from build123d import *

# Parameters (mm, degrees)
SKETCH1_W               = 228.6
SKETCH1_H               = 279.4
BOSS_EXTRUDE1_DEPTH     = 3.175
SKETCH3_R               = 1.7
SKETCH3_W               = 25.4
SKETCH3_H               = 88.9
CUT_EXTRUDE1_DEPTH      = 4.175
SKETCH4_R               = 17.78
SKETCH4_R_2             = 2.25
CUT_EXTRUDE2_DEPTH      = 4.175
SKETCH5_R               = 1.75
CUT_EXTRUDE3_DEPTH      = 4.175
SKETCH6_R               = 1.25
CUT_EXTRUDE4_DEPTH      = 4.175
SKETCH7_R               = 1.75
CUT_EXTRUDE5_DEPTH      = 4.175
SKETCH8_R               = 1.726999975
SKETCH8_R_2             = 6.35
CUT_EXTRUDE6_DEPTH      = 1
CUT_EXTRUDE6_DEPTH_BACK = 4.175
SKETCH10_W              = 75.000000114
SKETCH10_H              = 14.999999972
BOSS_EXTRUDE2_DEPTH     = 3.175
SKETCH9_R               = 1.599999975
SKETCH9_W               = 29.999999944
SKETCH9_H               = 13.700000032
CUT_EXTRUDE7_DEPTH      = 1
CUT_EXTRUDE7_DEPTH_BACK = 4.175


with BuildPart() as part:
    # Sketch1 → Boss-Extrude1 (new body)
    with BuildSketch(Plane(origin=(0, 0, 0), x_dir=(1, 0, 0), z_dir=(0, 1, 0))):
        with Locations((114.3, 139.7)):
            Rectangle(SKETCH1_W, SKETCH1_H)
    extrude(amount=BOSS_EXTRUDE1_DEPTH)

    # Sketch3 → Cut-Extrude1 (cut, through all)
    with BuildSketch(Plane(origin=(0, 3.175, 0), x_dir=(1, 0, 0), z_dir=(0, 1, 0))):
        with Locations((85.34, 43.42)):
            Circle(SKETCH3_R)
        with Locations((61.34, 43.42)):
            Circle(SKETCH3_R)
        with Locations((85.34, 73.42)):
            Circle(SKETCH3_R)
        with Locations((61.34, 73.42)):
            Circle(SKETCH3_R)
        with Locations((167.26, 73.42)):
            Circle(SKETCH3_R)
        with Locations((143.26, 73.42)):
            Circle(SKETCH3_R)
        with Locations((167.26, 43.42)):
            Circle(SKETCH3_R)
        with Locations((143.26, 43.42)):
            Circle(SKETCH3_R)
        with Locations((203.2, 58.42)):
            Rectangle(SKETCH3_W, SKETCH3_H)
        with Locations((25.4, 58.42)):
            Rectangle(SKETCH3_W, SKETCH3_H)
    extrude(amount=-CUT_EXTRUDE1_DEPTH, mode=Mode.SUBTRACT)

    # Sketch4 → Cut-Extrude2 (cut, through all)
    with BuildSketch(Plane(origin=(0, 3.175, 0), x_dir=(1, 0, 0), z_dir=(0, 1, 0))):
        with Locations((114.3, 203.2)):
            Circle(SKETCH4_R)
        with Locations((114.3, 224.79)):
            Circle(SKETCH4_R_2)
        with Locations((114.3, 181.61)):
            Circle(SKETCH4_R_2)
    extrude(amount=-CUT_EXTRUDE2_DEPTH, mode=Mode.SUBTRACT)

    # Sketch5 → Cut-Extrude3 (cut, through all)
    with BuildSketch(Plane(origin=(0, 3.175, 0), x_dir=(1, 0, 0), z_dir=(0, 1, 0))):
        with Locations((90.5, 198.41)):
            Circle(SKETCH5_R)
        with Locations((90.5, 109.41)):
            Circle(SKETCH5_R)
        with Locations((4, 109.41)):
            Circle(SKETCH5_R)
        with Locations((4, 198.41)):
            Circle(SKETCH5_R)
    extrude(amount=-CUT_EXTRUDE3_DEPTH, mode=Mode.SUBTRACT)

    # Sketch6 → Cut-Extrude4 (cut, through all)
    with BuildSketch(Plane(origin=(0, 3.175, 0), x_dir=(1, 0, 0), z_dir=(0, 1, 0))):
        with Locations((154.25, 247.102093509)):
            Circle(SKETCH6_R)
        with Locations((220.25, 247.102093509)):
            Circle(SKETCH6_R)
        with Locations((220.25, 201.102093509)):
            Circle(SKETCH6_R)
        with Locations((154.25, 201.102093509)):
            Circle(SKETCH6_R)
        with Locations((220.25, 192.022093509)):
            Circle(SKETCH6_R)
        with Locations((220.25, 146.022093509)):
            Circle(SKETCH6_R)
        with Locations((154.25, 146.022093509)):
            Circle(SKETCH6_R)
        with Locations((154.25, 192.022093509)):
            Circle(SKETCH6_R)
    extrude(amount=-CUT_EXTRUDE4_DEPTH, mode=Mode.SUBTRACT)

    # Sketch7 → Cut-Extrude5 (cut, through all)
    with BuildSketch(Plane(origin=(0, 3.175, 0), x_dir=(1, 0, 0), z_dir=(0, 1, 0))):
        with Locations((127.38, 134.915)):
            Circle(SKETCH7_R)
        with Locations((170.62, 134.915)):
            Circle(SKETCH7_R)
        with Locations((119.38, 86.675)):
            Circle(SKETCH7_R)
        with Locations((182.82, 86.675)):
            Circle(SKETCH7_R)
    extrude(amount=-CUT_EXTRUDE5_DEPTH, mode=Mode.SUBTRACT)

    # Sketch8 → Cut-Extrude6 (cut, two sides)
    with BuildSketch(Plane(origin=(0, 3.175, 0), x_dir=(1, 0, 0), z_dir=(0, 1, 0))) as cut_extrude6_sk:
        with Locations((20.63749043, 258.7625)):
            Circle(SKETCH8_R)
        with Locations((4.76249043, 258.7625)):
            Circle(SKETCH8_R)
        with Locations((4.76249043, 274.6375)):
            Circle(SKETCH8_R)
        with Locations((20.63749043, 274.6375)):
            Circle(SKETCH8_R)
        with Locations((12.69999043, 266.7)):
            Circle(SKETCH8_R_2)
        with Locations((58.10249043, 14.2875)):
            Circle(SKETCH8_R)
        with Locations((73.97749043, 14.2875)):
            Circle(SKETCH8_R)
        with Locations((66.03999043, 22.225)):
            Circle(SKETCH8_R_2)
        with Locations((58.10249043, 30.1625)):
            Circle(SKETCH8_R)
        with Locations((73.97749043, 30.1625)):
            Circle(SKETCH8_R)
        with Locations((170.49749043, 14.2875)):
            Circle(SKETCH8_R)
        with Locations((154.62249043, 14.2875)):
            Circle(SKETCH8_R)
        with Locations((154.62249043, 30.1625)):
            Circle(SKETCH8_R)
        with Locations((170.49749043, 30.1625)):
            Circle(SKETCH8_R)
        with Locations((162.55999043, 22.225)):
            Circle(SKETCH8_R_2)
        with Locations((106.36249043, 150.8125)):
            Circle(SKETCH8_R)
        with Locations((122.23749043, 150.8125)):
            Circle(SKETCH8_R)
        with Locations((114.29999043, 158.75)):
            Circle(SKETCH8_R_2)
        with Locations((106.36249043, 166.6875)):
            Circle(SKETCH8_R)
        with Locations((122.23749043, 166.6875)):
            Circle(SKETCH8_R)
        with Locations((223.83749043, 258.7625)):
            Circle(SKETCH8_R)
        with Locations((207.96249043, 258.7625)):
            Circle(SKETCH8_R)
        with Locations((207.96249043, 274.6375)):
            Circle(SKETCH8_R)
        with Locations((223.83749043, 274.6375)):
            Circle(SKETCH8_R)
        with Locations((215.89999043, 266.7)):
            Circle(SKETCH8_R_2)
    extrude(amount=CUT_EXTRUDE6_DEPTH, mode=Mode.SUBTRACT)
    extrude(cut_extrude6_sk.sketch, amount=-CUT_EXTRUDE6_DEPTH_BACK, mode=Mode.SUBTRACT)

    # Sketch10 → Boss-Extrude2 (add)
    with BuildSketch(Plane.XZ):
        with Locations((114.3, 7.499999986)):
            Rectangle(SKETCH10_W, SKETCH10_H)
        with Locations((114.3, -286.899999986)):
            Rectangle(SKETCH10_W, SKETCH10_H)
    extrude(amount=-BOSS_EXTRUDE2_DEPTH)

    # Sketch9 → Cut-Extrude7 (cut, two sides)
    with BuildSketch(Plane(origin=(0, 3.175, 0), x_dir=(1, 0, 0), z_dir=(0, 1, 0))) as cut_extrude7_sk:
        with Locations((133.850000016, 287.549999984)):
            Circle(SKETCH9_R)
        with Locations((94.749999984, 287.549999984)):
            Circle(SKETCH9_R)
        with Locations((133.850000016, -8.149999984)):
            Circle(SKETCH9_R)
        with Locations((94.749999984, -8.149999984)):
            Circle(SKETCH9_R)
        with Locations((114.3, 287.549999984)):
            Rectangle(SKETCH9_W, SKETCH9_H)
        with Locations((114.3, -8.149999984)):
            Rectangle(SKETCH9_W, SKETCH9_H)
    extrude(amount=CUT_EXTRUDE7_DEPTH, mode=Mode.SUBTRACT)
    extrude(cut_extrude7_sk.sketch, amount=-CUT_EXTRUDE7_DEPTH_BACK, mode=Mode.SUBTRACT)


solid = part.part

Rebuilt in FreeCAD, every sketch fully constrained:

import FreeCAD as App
import Part
import Sketcher
Q = App.Units.Quantity

doc = App.newDocument("Part")
params = doc.addObject("Spreadsheet::Sheet", "Params")
for row, (alias, value) in enumerate([
    ("sketch1_width", "228.6 mm"),
    ("sketch1_height", "279.4 mm"),
    ("pad1_length", "3.175 mm"),
    ("sketch2_diameter", "3.4 mm"),
    ("sketch2_width", "25.4 mm"),
    ("sketch2_height", "88.9 mm"),
    ("sketch3_diameter", "4.5 mm"),
    ("sketch3_diameter2", "35.56 mm"),
    ("sketch4_diameter", "3.5 mm"),
    ("sketch5_diameter", "2.5 mm"),
    ("sketch6_diameter", "3.5 mm"),
    ("sketch7_diameter", "12.7 mm"),
    ("sketch8_width", "75 mm"),
    ("sketch8_height", "15 mm"),
    ("pad2_length", "3.175 mm"),
    ("sketch9_diameter", "3.2 mm"),
    ("sketch9_width", "30 mm"),
    ("sketch9_height", "13.7 mm"),
], start=1):
    params.set(f"A{row}", alias)
    params.set(f"B{row}", "=" + value)
    params.setAlias(f"B{row}", alias)

body = doc.addObject("PartDesign::Body", "Body")

# Sketch on XZ plane
sketch1 = body.newObject("Sketcher::SketchObject", "Sketch")
sketch1.AttachmentSupport = (doc.getObject("XZ_Plane"), [""])
sketch1.MapMode = "FlatFace"
sketch1.addGeometry(Part.LineSegment(App.Vector(0, -279, 0), App.Vector(0, 0, 0)), False)
sketch1.addGeometry(Part.LineSegment(App.Vector(0, 0, 0), App.Vector(229, 0, 0)), False)
sketch1.addGeometry(Part.LineSegment(App.Vector(229, 0, 0), App.Vector(229, -279, 0)), False)
sketch1.addGeometry(Part.LineSegment(App.Vector(229, -279, 0), App.Vector(0, -279, 0)), False)
sketch1.addConstraint(Sketcher.Constraint("Coincident", 0, 2, 1, 1))
sketch1.addConstraint(Sketcher.Constraint("Coincident", 1, 2, 2, 1))
sketch1.addConstraint(Sketcher.Constraint("Coincident", 2, 2, 3, 1))
sketch1.addConstraint(Sketcher.Constraint("Coincident", 3, 2, 0, 1))
sketch1.addConstraint(Sketcher.Constraint("Vertical", 0))
sketch1.addConstraint(Sketcher.Constraint("Horizontal", 1))
sketch1.addConstraint(Sketcher.Constraint("Vertical", 2))
sketch1.addConstraint(Sketcher.Constraint("Horizontal", 3))
sketch1.addConstraint(Sketcher.Constraint("Coincident", 0, 2, -1, 1))
sketch1.addConstraint(Sketcher.Constraint("DistanceX", 1, 1, 1, 2, Q("228.6 mm")))
sketch1.addConstraint(Sketcher.Constraint("DistanceY", 0, 1, 0, 2, Q("279.4 mm")))
sketch1.setExpression("Constraints[9]", "Params.sketch1_width")
sketch1.setExpression("Constraints[10]", "Params.sketch1_height")
pad1 = body.newObject("PartDesign::Pad", "Pad")
pad1.Profile = sketch1
pad1.setExpression("Length", "Params.pad1_length")
pad1.Reversed = True

# Sketch on XZ plane
sketch2 = body.newObject("Sketcher::SketchObject", "Sketch001")
sketch2.AttachmentSupport = (doc.getObject("XZ_Plane"), [""])
sketch2.MapMode = "FlatFace"
sketch2.AttachmentOffset = App.Placement(App.Vector(0, 0, -3.175), App.Rotation())
sketch2.addGeometry(Part.Circle(App.Vector(85.3, -43.4, 0), App.Vector(0, 0, 1), 1.7), False)
sketch2.addGeometry(Part.Circle(App.Vector(61.3, -43.4, 0), App.Vector(0, 0, 1), 1.7), False)
sketch2.addGeometry(Part.Circle(App.Vector(85.3, -73.4, 0), App.Vector(0, 0, 1), 1.7), False)
sketch2.addGeometry(Part.Circle(App.Vector(61.3, -73.4, 0), App.Vector(0, 0, 1), 1.7), False)
sketch2.addGeometry(Part.Circle(App.Vector(167.3, -73.4, 0), App.Vector(0, 0, 1), 1.7), False)
sketch2.addGeometry(Part.Circle(App.Vector(143.3, -73.4, 0), App.Vector(0, 0, 1), 1.7), False)
sketch2.addGeometry(Part.Circle(App.Vector(167.3, -43.4, 0), App.Vector(0, 0, 1), 1.7), False)
sketch2.addGeometry(Part.Circle(App.Vector(143.3, -43.4, 0), App.Vector(0, 0, 1), 1.7), False)
sketch2.addGeometry(Part.LineSegment(App.Vector(190.5, -102.9, 0), App.Vector(190.5, -14, 0)), False)
sketch2.addGeometry(Part.LineSegment(App.Vector(190.5, -14, 0), App.Vector(215.9, -14, 0)), False)
sketch2.addGeometry(Part.LineSegment(App.Vector(215.9, -14, 0), App.Vector(215.9, -102.9, 0)), False)
sketch2.addGeometry(Part.LineSegment(App.Vector(215.9, -102.9, 0), App.Vector(190.5, -102.9, 0)), False)
sketch2.addGeometry(Part.LineSegment(App.Vector(12.7, -102.9, 0), App.Vector(12.7, -14, 0)), False)
sketch2.addGeometry(Part.LineSegment(App.Vector(12.7, -14, 0), App.Vector(38.1, -14, 0)), False)
sketch2.addGeometry(Part.LineSegment(App.Vector(38.1, -14, 0), App.Vector(38.1, -102.9, 0)), False)
sketch2.addGeometry(Part.LineSegment(App.Vector(38.1, -102.9, 0), App.Vector(12.7, -102.9, 0)), False)
sketch2.addConstraint(Sketcher.Constraint("Coincident", 8, 2, 9, 1))
sketch2.addConstraint(Sketcher.Constraint("Coincident", 9, 2, 10, 1))
sketch2.addConstraint(Sketcher.Constraint("Coincident", 10, 2, 11, 1))
sketch2.addConstraint(Sketcher.Constraint("Coincident", 11, 2, 8, 1))
sketch2.addConstraint(Sketcher.Constraint("Coincident", 12, 2, 13, 1))
sketch2.addConstraint(Sketcher.Constraint("Coincident", 13, 2, 14, 1))
sketch2.addConstraint(Sketcher.Constraint("Coincident", 14, 2, 15, 1))
sketch2.addConstraint(Sketcher.Constraint("Coincident", 15, 2, 12, 1))
sketch2.addConstraint(Sketcher.Constraint("Vertical", 8))
sketch2.addConstraint(Sketcher.Constraint("Horizontal", 9))
sketch2.addConstraint(Sketcher.Constraint("Vertical", 10))
sketch2.addConstraint(Sketcher.Constraint("Horizontal", 11))
sketch2.addConstraint(Sketcher.Constraint("Vertical", 12))
sketch2.addConstraint(Sketcher.Constraint("Horizontal", 13))
sketch2.addConstraint(Sketcher.Constraint("Vertical", 14))
sketch2.addConstraint(Sketcher.Constraint("Horizontal", 15))
sketch2.addConstraint(Sketcher.Constraint("Equal", 0, 1))
sketch2.addConstraint(Sketcher.Constraint("Equal", 1, 2))
sketch2.addConstraint(Sketcher.Constraint("Equal", 2, 3))
sketch2.addConstraint(Sketcher.Constraint("Equal", 3, 4))
sketch2.addConstraint(Sketcher.Constraint("Equal", 4, 5))
sketch2.addConstraint(Sketcher.Constraint("Equal", 5, 6))
sketch2.addConstraint(Sketcher.Constraint("Equal", 6, 7))
sketch2.addConstraint(Sketcher.Constraint("Horizontal", 0, 3, 1, 3))
sketch2.addConstraint(Sketcher.Constraint("Horizontal", 2, 3, 3, 3))
sketch2.addConstraint(Sketcher.Constraint("Horizontal", 3, 3, 4, 3))
sketch2.addConstraint(Sketcher.Constraint("Horizontal", 4, 3, 5, 3))
sketch2.addConstraint(Sketcher.Constraint("Horizontal", 1, 3, 6, 3))
sketch2.addConstraint(Sketcher.Constraint("Horizontal", 6, 3, 7, 3))
sketch2.addConstraint(Sketcher.Constraint("Horizontal", 9, 2, 12, 2))
sketch2.addConstraint(Sketcher.Constraint("Horizontal", 11, 2, 14, 2))
sketch2.addConstraint(Sketcher.Constraint("Vertical", 0, 3, 2, 3))
sketch2.addConstraint(Sketcher.Constraint("Vertical", 1, 3, 3, 3))
sketch2.addConstraint(Sketcher.Constraint("Vertical", 4, 3, 6, 3))
sketch2.addConstraint(Sketcher.Constraint("Vertical", 5, 3, 7, 3))
sketch2.addConstraint(Sketcher.Constraint("Equal", 11, 13))
sketch2.addConstraint(Sketcher.Constraint("Diameter", 0, Q("3.4 mm")))
sketch2.addConstraint(Sketcher.Constraint("DistanceX", 9, 1, 9, 2, Q("25.4 mm")))
sketch2.addConstraint(Sketcher.Constraint("DistanceY", 8, 1, 8, 2, Q("88.9 mm")))
sketch2.addConstraint(Sketcher.Constraint("DistanceX", 1, 3, 0, 3, Q("24 mm")))
sketch2.addConstraint(Sketcher.Constraint("DistanceY", 2, 3, 0, 3, Q("30 mm")))
sketch2.addConstraint(Sketcher.Constraint("DistanceX", 5, 3, 4, 3, Q("24 mm")))
sketch2.addConstraint(Sketcher.Constraint("DistanceX", -1, 1, 8, 2, Q("190.5 mm")))
sketch2.addConstraint(Sketcher.Constraint("DistanceX", -1, 1, 12, 2, Q("12.7 mm")))
sketch2.addConstraint(Sketcher.Constraint("DistanceX", -1, 1, 0, 3, Q("85.34 mm")))
sketch2.addConstraint(Sketcher.Constraint("DistanceY", 0, 3, -1, 1, Q("43.42 mm")))
sketch2.addConstraint(Sketcher.Constraint("DistanceX", -1, 1, 4, 3, Q("167.26 mm")))
sketch2.addConstraint(Sketcher.Constraint("DistanceY", 8, 2, -1, 1, Q("13.97 mm")))
sketch2.setExpression("Constraints[36]", "Params.sketch2_diameter")
sketch2.setExpression("Constraints[37]", "Params.sketch2_width")
sketch2.setExpression("Constraints[38]", "Params.sketch2_height")
pocket1 = body.newObject("PartDesign::Pocket", "Pocket")
pocket1.Profile = sketch2
pocket1.Type = "ThroughAll"
pocket1.Reversed = True

# Sketch on XZ plane
sketch3 = body.newObject("Sketcher::SketchObject", "Sketch002")
sketch3.AttachmentSupport = (doc.getObject("XZ_Plane"), [""])
sketch3.MapMode = "FlatFace"
sketch3.AttachmentOffset = App.Placement(App.Vector(0, 0, -3.175), App.Rotation())
sketch3.addGeometry(Part.Circle(App.Vector(114.3, -203.2, 0), App.Vector(0, 0, 1), 17.8), False)
sketch3.addGeometry(Part.Circle(App.Vector(114.3, -224.8, 0), App.Vector(0, 0, 1), 2.2), False)
sketch3.addGeometry(Part.Circle(App.Vector(114.3, -181.6, 0), App.Vector(0, 0, 1), 2.2), False)
sketch3.addConstraint(Sketcher.Constraint("Equal", 1, 2))
sketch3.addConstraint(Sketcher.Constraint("Vertical", 0, 3, 1, 3))
sketch3.addConstraint(Sketcher.Constraint("Vertical", 1, 3, 2, 3))
sketch3.addConstraint(Sketcher.Constraint("Diameter", 1, Q("4.5 mm")))
sketch3.addConstraint(Sketcher.Constraint("Diameter", 0, Q("35.56 mm")))
sketch3.addConstraint(Sketcher.Constraint("DistanceX", -1, 1, 0, 3, Q("114.3 mm")))
sketch3.addConstraint(Sketcher.Constraint("DistanceY", 0, 3, -1, 1, Q("203.2 mm")))
sketch3.addConstraint(Sketcher.Constraint("DistanceY", 1, 3, -1, 1, Q("224.79 mm")))
sketch3.addConstraint(Sketcher.Constraint("DistanceY", 2, 3, -1, 1, Q("181.61 mm")))
sketch3.setExpression("Constraints[3]", "Params.sketch3_diameter")
sketch3.setExpression("Constraints[4]", "Params.sketch3_diameter2")
pocket2 = body.newObject("PartDesign::Pocket", "Pocket001")
pocket2.Profile = sketch3
pocket2.Type = "ThroughAll"
pocket2.Reversed = True

# Sketch on XZ plane
sketch4 = body.newObject("Sketcher::SketchObject", "Sketch003")
sketch4.AttachmentSupport = (doc.getObject("XZ_Plane"), [""])
sketch4.MapMode = "FlatFace"
sketch4.AttachmentOffset = App.Placement(App.Vector(0, 0, -3.175), App.Rotation())
sketch4.addGeometry(Part.Circle(App.Vector(90.5, -198.4, 0), App.Vector(0, 0, 1), 1.8), False)
sketch4.addGeometry(Part.Circle(App.Vector(90.5, -109.4, 0), App.Vector(0, 0, 1), 1.8), False)
sketch4.addGeometry(Part.Circle(App.Vector(4, -109.4, 0), App.Vector(0, 0, 1), 1.8), False)
sketch4.addGeometry(Part.Circle(App.Vector(4, -198.4, 0), App.Vector(0, 0, 1), 1.8), False)
sketch4.addConstraint(Sketcher.Constraint("Equal", 0, 1))
sketch4.addConstraint(Sketcher.Constraint("Equal", 1, 2))
sketch4.addConstraint(Sketcher.Constraint("Equal", 2, 3))
sketch4.addConstraint(Sketcher.Constraint("Horizontal", 1, 3, 2, 3))
sketch4.addConstraint(Sketcher.Constraint("Horizontal", 0, 3, 3, 3))
sketch4.addConstraint(Sketcher.Constraint("Vertical", 0, 3, 1, 3))
sketch4.addConstraint(Sketcher.Constraint("Vertical", 2, 3, 3, 3))
sketch4.addConstraint(Sketcher.Constraint("Diameter", 0, Q("3.5 mm")))
sketch4.addConstraint(Sketcher.Constraint("DistanceX", -1, 1, 2, 3, Q("4 mm")))
sketch4.addConstraint(Sketcher.Constraint("DistanceY", 0, 3, 1, 3, Q("89 mm")))
sketch4.addConstraint(Sketcher.Constraint("DistanceX", -1, 1, 0, 3, Q("90.5 mm")))
sketch4.addConstraint(Sketcher.Constraint("DistanceY", 0, 3, -1, 1, Q("198.41 mm")))
sketch4.setExpression("Constraints[7]", "Params.sketch4_diameter")
pocket3 = body.newObject("PartDesign::Pocket", "Pocket002")
pocket3.Profile = sketch4
pocket3.Type = "ThroughAll"
pocket3.Reversed = True

# Sketch on XZ plane
sketch5 = body.newObject("Sketcher::SketchObject", "Sketch004")
sketch5.AttachmentSupport = (doc.getObject("XZ_Plane"), [""])
sketch5.MapMode = "FlatFace"
sketch5.AttachmentOffset = App.Placement(App.Vector(0, 0, -3.175), App.Rotation())
sketch5.addGeometry(Part.Circle(App.Vector(154.2, -247.1, 0), App.Vector(0, 0, 1), 1.2), False)
sketch5.addGeometry(Part.Circle(App.Vector(220.2, -247.1, 0), App.Vector(0, 0, 1), 1.2), False)
sketch5.addGeometry(Part.Circle(App.Vector(220.2, -201.1, 0), App.Vector(0, 0, 1), 1.2), False)
sketch5.addGeometry(Part.Circle(App.Vector(154.2, -201.1, 0), App.Vector(0, 0, 1), 1.2), False)
sketch5.addGeometry(Part.Circle(App.Vector(220.2, -192, 0), App.Vector(0, 0, 1), 1.2), False)
sketch5.addGeometry(Part.Circle(App.Vector(220.2, -146, 0), App.Vector(0, 0, 1), 1.2), False)
sketch5.addGeometry(Part.Circle(App.Vector(154.2, -146, 0), App.Vector(0, 0, 1), 1.2), False)
sketch5.addGeometry(Part.Circle(App.Vector(154.2, -192, 0), App.Vector(0, 0, 1), 1.2), False)
sketch5.addConstraint(Sketcher.Constraint("Equal", 0, 1))
sketch5.addConstraint(Sketcher.Constraint("Equal", 1, 2))
sketch5.addConstraint(Sketcher.Constraint("Equal", 2, 3))
sketch5.addConstraint(Sketcher.Constraint("Equal", 3, 4))
sketch5.addConstraint(Sketcher.Constraint("Equal", 4, 5))
sketch5.addConstraint(Sketcher.Constraint("Equal", 5, 6))
sketch5.addConstraint(Sketcher.Constraint("Equal", 6, 7))
sketch5.addConstraint(Sketcher.Constraint("Horizontal", 0, 3, 1, 3))
sketch5.addConstraint(Sketcher.Constraint("Horizontal", 2, 3, 3, 3))
sketch5.addConstraint(Sketcher.Constraint("Horizontal", 5, 3, 6, 3))
sketch5.addConstraint(Sketcher.Constraint("Horizontal", 4, 3, 7, 3))
sketch5.addConstraint(Sketcher.Constraint("Vertical", 1, 3, 2, 3))
sketch5.addConstraint(Sketcher.Constraint("Vertical", 0, 3, 3, 3))
sketch5.addConstraint(Sketcher.Constraint("Vertical", 2, 3, 4, 3))
sketch5.addConstraint(Sketcher.Constraint("Vertical", 4, 3, 5, 3))
sketch5.addConstraint(Sketcher.Constraint("Vertical", 3, 3, 6, 3))
sketch5.addConstraint(Sketcher.Constraint("Vertical", 6, 3, 7, 3))
sketch5.addConstraint(Sketcher.Constraint("Diameter", 0, Q("2.5 mm")))
sketch5.addConstraint(Sketcher.Constraint("DistanceX", 0, 3, 1, 3, Q("66 mm")))
sketch5.addConstraint(Sketcher.Constraint("DistanceY", 1, 3, 2, 3, Q("46 mm")))
sketch5.addConstraint(Sketcher.Constraint("DistanceY", 4, 3, 5, 3, Q("46 mm")))
sketch5.addConstraint(Sketcher.Constraint("DistanceX", -1, 1, 0, 3, Q("154.25 mm")))
sketch5.addConstraint(Sketcher.Constraint("DistanceY", 2, 3, 4, 3, Q("9.08 mm")))
sketch5.addConstraint(Sketcher.Constraint("DistanceY", 0, 3, -1, 1, Q("247.102094 mm")))
sketch5.setExpression("Constraints[17]", "Params.sketch5_diameter")
pocket4 = body.newObject("PartDesign::Pocket", "Pocket003")
pocket4.Profile = sketch5
pocket4.Type = "ThroughAll"
pocket4.Reversed = True

# Sketch on XZ plane
sketch6 = body.newObject("Sketcher::SketchObject", "Sketch005")
sketch6.AttachmentSupport = (doc.getObject("XZ_Plane"), [""])
sketch6.MapMode = "FlatFace"
sketch6.AttachmentOffset = App.Placement(App.Vector(0, 0, -3.175), App.Rotation())
sketch6.addGeometry(Part.Circle(App.Vector(127.4, -134.9, 0), App.Vector(0, 0, 1), 1.8), False)
sketch6.addGeometry(Part.Circle(App.Vector(170.6, -134.9, 0), App.Vector(0, 0, 1), 1.8), False)
sketch6.addGeometry(Part.Circle(App.Vector(119.4, -86.7, 0), App.Vector(0, 0, 1), 1.8), False)
sketch6.addGeometry(Part.Circle(App.Vector(182.8, -86.7, 0), App.Vector(0, 0, 1), 1.8), False)
sketch6.addConstraint(Sketcher.Constraint("Equal", 0, 1))
sketch6.addConstraint(Sketcher.Constraint("Equal", 1, 2))
sketch6.addConstraint(Sketcher.Constraint("Equal", 2, 3))
sketch6.addConstraint(Sketcher.Constraint("Horizontal", 0, 3, 1, 3))
sketch6.addConstraint(Sketcher.Constraint("Horizontal", 2, 3, 3, 3))
sketch6.addConstraint(Sketcher.Constraint("Diameter", 0, Q("3.5 mm")))
sketch6.addConstraint(Sketcher.Constraint("DistanceX", 2, 3, 0, 3, Q("8 mm")))
sketch6.addConstraint(Sketcher.Constraint("DistanceX", 1, 3, 3, 3, Q("12.2 mm")))
sketch6.addConstraint(Sketcher.Constraint("DistanceX", -1, 1, 0, 3, Q("127.38 mm")))
sketch6.addConstraint(Sketcher.Constraint("DistanceX", -1, 1, 1, 3, Q("170.62 mm")))
sketch6.addConstraint(Sketcher.Constraint("DistanceY", 0, 3, 2, 3, Q("48.24 mm")))
sketch6.addConstraint(Sketcher.Constraint("DistanceY", 0, 3, -1, 1, Q("134.915 mm")))
sketch6.setExpression("Constraints[5]", "Params.sketch6_diameter")
pocket5 = body.newObject("PartDesign::Pocket", "Pocket004")
pocket5.Profile = sketch6
pocket5.Type = "ThroughAll"
pocket5.Reversed = True

# Sketch on XZ plane
sketch7 = body.newObject("Sketcher::SketchObject", "Sketch006")
sketch7.AttachmentSupport = (doc.getObject("XZ_Plane"), [""])
sketch7.MapMode = "FlatFace"
sketch7.AttachmentOffset = App.Placement(App.Vector(0, 0, -3.175), App.Rotation())
sketch7.addGeometry(Part.Circle(App.Vector(20.6, -258.8, 0), App.Vector(0, 0, 1), 1.7), False)
sketch7.addGeometry(Part.Circle(App.Vector(4.8, -258.8, 0), App.Vector(0, 0, 1), 1.7), False)
sketch7.addGeometry(Part.Circle(App.Vector(4.8, -274.6, 0), App.Vector(0, 0, 1), 1.7), False)
sketch7.addGeometry(Part.Circle(App.Vector(20.6, -274.6, 0), App.Vector(0, 0, 1), 1.7), False)
sketch7.addGeometry(Part.Circle(App.Vector(12.7, -266.7, 0), App.Vector(0, 0, 1), 6.3), False)
sketch7.addGeometry(Part.Circle(App.Vector(58.1, -14.3, 0), App.Vector(0, 0, 1), 1.7), False)
sketch7.addGeometry(Part.Circle(App.Vector(74, -14.3, 0), App.Vector(0, 0, 1), 1.7), False)
sketch7.addGeometry(Part.Circle(App.Vector(66, -22.2, 0), App.Vector(0, 0, 1), 6.3), False)
sketch7.addGeometry(Part.Circle(App.Vector(58.1, -30.2, 0), App.Vector(0, 0, 1), 1.7), False)
sketch7.addGeometry(Part.Circle(App.Vector(74, -30.2, 0), App.Vector(0, 0, 1), 1.7), False)
sketch7.addGeometry(Part.Circle(App.Vector(170.5, -14.3, 0), App.Vector(0, 0, 1), 1.7), False)
sketch7.addGeometry(Part.Circle(App.Vector(154.6, -14.3, 0), App.Vector(0, 0, 1), 1.7), False)
sketch7.addGeometry(Part.Circle(App.Vector(154.6, -30.2, 0), App.Vector(0, 0, 1), 1.7), False)
sketch7.addGeometry(Part.Circle(App.Vector(170.5, -30.2, 0), App.Vector(0, 0, 1), 1.7), False)
sketch7.addGeometry(Part.Circle(App.Vector(162.6, -22.2, 0), App.Vector(0, 0, 1), 6.3), False)
sketch7.addGeometry(Part.Circle(App.Vector(106.4, -150.8, 0), App.Vector(0, 0, 1), 1.7), False)
sketch7.addGeometry(Part.Circle(App.Vector(122.2, -150.8, 0), App.Vector(0, 0, 1), 1.7), False)
sketch7.addGeometry(Part.Circle(App.Vector(114.3, -158.8, 0), App.Vector(0, 0, 1), 6.3), False)
sketch7.addGeometry(Part.Circle(App.Vector(106.4, -166.7, 0), App.Vector(0, 0, 1), 1.7), False)
sketch7.addGeometry(Part.Circle(App.Vector(122.2, -166.7, 0), App.Vector(0, 0, 1), 1.7), False)
sketch7.addGeometry(Part.Circle(App.Vector(223.8, -258.8, 0), App.Vector(0, 0, 1), 1.7), False)
sketch7.addGeometry(Part.Circle(App.Vector(208, -258.8, 0), App.Vector(0, 0, 1), 1.7), False)
sketch7.addGeometry(Part.Circle(App.Vector(208, -274.6, 0), App.Vector(0, 0, 1), 1.7), False)
sketch7.addGeometry(Part.Circle(App.Vector(223.8, -274.6, 0), App.Vector(0, 0, 1), 1.7), False)
sketch7.addGeometry(Part.Circle(App.Vector(215.9, -266.7, 0), App.Vector(0, 0, 1), 6.3), False)
sketch7.addConstraint(Sketcher.Constraint("Equal", 0, 1))
sketch7.addConstraint(Sketcher.Constraint("Equal", 1, 2))
sketch7.addConstraint(Sketcher.Constraint("Equal", 2, 3))
sketch7.addConstraint(Sketcher.Constraint("Equal", 3, 5))
sketch7.addConstraint(Sketcher.Constraint("Equal", 5, 6))
sketch7.addConstraint(Sketcher.Constraint("Equal", 4, 7))
sketch7.addConstraint(Sketcher.Constraint("Equal", 6, 8))
sketch7.addConstraint(Sketcher.Constraint("Equal", 8, 9))
sketch7.addConstraint(Sketcher.Constraint("Equal", 9, 10))
sketch7.addConstraint(Sketcher.Constraint("Equal", 10, 11))
sketch7.addConstraint(Sketcher.Constraint("Equal", 11, 12))
sketch7.addConstraint(Sketcher.Constraint("Equal", 12, 13))
sketch7.addConstraint(Sketcher.Constraint("Equal", 7, 14))
sketch7.addConstraint(Sketcher.Constraint("Equal", 13, 15))
sketch7.addConstraint(Sketcher.Constraint("Equal", 15, 16))
sketch7.addConstraint(Sketcher.Constraint("Equal", 14, 17))
sketch7.addConstraint(Sketcher.Constraint("Equal", 16, 18))
sketch7.addConstraint(Sketcher.Constraint("Equal", 18, 19))
sketch7.addConstraint(Sketcher.Constraint("Equal", 19, 20))
sketch7.addConstraint(Sketcher.Constraint("Equal", 20, 21))
sketch7.addConstraint(Sketcher.Constraint("Equal", 21, 22))
sketch7.addConstraint(Sketcher.Constraint("Equal", 22, 23))
sketch7.addConstraint(Sketcher.Constraint("Equal", 17, 24))
sketch7.addConstraint(Sketcher.Constraint("Horizontal", 0, 3, 1, 3))
sketch7.addConstraint(Sketcher.Constraint("Horizontal", 2, 3, 3, 3))
sketch7.addConstraint(Sketcher.Constraint("Horizontal", 5, 3, 6, 3))
sketch7.addConstraint(Sketcher.Constraint("Horizontal", 8, 3, 9, 3))
sketch7.addConstraint(Sketcher.Constraint("Horizontal", 6, 3, 10, 3))
sketch7.addConstraint(Sketcher.Constraint("Horizontal", 10, 3, 11, 3))
sketch7.addConstraint(Sketcher.Constraint("Horizontal", 9, 3, 12, 3))
sketch7.addConstraint(Sketcher.Constraint("Horizontal", 12, 3, 13, 3))
sketch7.addConstraint(Sketcher.Constraint("Horizontal", 7, 3, 14, 3))
sketch7.addConstraint(Sketcher.Constraint("Horizontal", 15, 3, 16, 3))
sketch7.addConstraint(Sketcher.Constraint("Horizontal", 18, 3, 19, 3))
sketch7.addConstraint(Sketcher.Constraint("Horizontal", 1, 3, 20, 3))
sketch7.addConstraint(Sketcher.Constraint("Horizontal", 20, 3, 21, 3))
sketch7.addConstraint(Sketcher.Constraint("Horizontal", 3, 3, 22, 3))
sketch7.addConstraint(Sketcher.Constraint("Horizontal", 22, 3, 23, 3))
sketch7.addConstraint(Sketcher.Constraint("Horizontal", 4, 3, 24, 3))
sketch7.addConstraint(Sketcher.Constraint("Vertical", 1, 3, 2, 3))
sketch7.addConstraint(Sketcher.Constraint("Vertical", 0, 3, 3, 3))
sketch7.addConstraint(Sketcher.Constraint("Vertical", 5, 3, 8, 3))
sketch7.addConstraint(Sketcher.Constraint("Vertical", 6, 3, 9, 3))
sketch7.addConstraint(Sketcher.Constraint("Vertical", 11, 3, 12, 3))
sketch7.addConstraint(Sketcher.Constraint("Vertical", 10, 3, 13, 3))
sketch7.addConstraint(Sketcher.Constraint("Vertical", 15, 3, 18, 3))
sketch7.addConstraint(Sketcher.Constraint("Vertical", 16, 3, 19, 3))
sketch7.addConstraint(Sketcher.Constraint("Vertical", 21, 3, 22, 3))
sketch7.addConstraint(Sketcher.Constraint("Vertical", 20, 3, 23, 3))
sketch7.addConstraint(Sketcher.Constraint("Diameter", 4, Q("12.7 mm")))
sketch7.addConstraint(Sketcher.Constraint("Diameter", 0, Q("3.454 mm")))
sketch7.addConstraint(Sketcher.Constraint("DistanceY", 4, 3, -1, 1, Q("266.7 mm")))
sketch7.addConstraint(Sketcher.Constraint("DistanceY", 0, 3, 8, 3, Q("228.6 mm")))
sketch7.addConstraint(Sketcher.Constraint("DistanceX", 0, 3, 19, 3, Q("101.6 mm")))
sketch7.addConstraint(Sketcher.Constraint("DistanceX", 19, 3, 20, 3, Q("101.6 mm")))
sketch7.addConstraint(Sketcher.Constraint("DistanceX", 18, 3, 21, 3, Q("101.6 mm")))
sketch7.addConstraint(Sketcher.Constraint("DistanceY", 17, 3, -1, 1, Q("158.75 mm")))
sketch7.addConstraint(Sketcher.Constraint("DistanceX", 1, 3, 5, 3, Q("53.34 mm")))
sketch7.addConstraint(Sketcher.Constraint("DistanceY", 3, 3, 5, 3, Q("260.35 mm")))
sketch7.addConstraint(Sketcher.Constraint("DistanceX", 0, 3, 6, 3, Q("53.34 mm")))
sketch7.addConstraint(Sketcher.Constraint("DistanceX", 4, 3, 7, 3, Q("53.34 mm")))
sketch7.addConstraint(Sketcher.Constraint("DistanceX", 6, 3, 10, 3, Q("96.52 mm")))
sketch7.addConstraint(Sketcher.Constraint("DistanceX", 5, 3, 11, 3, Q("96.52 mm")))
sketch7.addConstraint(Sketcher.Constraint("DistanceY", 15, 3, 9, 3, Q("120.65 mm")))
sketch7.addConstraint(Sketcher.Constraint("DistanceX", 8, 3, 15, 3, Q("48.26 mm")))
sketch7.addConstraint(Sketcher.Constraint("DistanceY", 22, 3, 19, 3, Q("107.95 mm")))
sketch7.addConstraint(Sketcher.Constraint("DistanceY", 7, 3, -1, 1, Q("22.225 mm")))
sketch7.addConstraint(Sketcher.Constraint("DistanceX", 1, 3, 0, 3, Q("15.875 mm")))
sketch7.addConstraint(Sketcher.Constraint("DistanceY", 2, 3, 1, 3, Q("15.875 mm")))
sketch7.addConstraint(Sketcher.Constraint("DistanceY", 0, 3, -1, 1, Q("258.7625 mm")))
sketch7.addConstraint(Sketcher.Constraint("DistanceX", 4, 3, 0, 3, Q("7.9375 mm")))
sketch7.addConstraint(Sketcher.Constraint("DistanceX", 12, 3, 14, 3, Q("7.9375 mm")))
sketch7.addConstraint(Sketcher.Constraint("DistanceX", 15, 3, 17, 3, Q("7.9375 mm")))
sketch7.addConstraint(Sketcher.Constraint("DistanceX", 24, 3, 20, 3, Q("7.9375 mm")))
sketch7.addConstraint(Sketcher.Constraint("DistanceX", -1, 1, 0, 3, Q("20.63749 mm")))
sketch7.setExpression("Constraints[49]", "Params.sketch7_diameter")
pocket6 = body.newObject("PartDesign::Pocket", "Pocket005")
pocket6.Profile = sketch7
pocket6.Type = "ThroughAll"
pocket6.Midplane = True

# Sketch on XZ plane
sketch8 = body.newObject("Sketcher::SketchObject", "Sketch007")
sketch8.AttachmentSupport = (doc.getObject("XZ_Plane"), [""])
sketch8.MapMode = "FlatFace"
sketch8.addGeometry(Part.LineSegment(App.Vector(77, 15, 0), App.Vector(77, 0, 0)), False)
sketch8.addGeometry(Part.LineSegment(App.Vector(77, 0, 0), App.Vector(152, 0, 0)), False)
sketch8.addGeometry(Part.LineSegment(App.Vector(152, 0, 0), App.Vector(152, 15, 0)), False)
sketch8.addGeometry(Part.LineSegment(App.Vector(152, 15, 0), App.Vector(77, 15, 0)), False)
sketch8.addGeometry(Part.LineSegment(App.Vector(77, -279, 0), App.Vector(77, -294, 0)), False)
sketch8.addGeometry(Part.LineSegment(App.Vector(77, -294, 0), App.Vector(152, -294, 0)), False)
sketch8.addGeometry(Part.LineSegment(App.Vector(152, -294, 0), App.Vector(152, -279, 0)), False)
sketch8.addGeometry(Part.LineSegment(App.Vector(152, -279, 0), App.Vector(77, -279, 0)), False)
sketch8.addConstraint(Sketcher.Constraint("Coincident", 0, 2, 1, 1))
sketch8.addConstraint(Sketcher.Constraint("Coincident", 1, 2, 2, 1))
sketch8.addConstraint(Sketcher.Constraint("Coincident", 2, 2, 3, 1))
sketch8.addConstraint(Sketcher.Constraint("Coincident", 3, 2, 0, 1))
sketch8.addConstraint(Sketcher.Constraint("Coincident", 4, 2, 5, 1))
sketch8.addConstraint(Sketcher.Constraint("Coincident", 5, 2, 6, 1))
sketch8.addConstraint(Sketcher.Constraint("Coincident", 6, 2, 7, 1))
sketch8.addConstraint(Sketcher.Constraint("Coincident", 7, 2, 4, 1))
sketch8.addConstraint(Sketcher.Constraint("Vertical", 0))
sketch8.addConstraint(Sketcher.Constraint("Horizontal", 1))
sketch8.addConstraint(Sketcher.Constraint("Vertical", 2))
sketch8.addConstraint(Sketcher.Constraint("Horizontal", 3))
sketch8.addConstraint(Sketcher.Constraint("Vertical", 4))
sketch8.addConstraint(Sketcher.Constraint("Horizontal", 5))
sketch8.addConstraint(Sketcher.Constraint("Vertical", 6))
sketch8.addConstraint(Sketcher.Constraint("Horizontal", 7))
sketch8.addConstraint(Sketcher.Constraint("PointOnObject", 0, 2, -1))
sketch8.addConstraint(Sketcher.Constraint("Vertical", 3, 2, 4, 2))
sketch8.addConstraint(Sketcher.Constraint("Vertical", 2, 2, 5, 2))
sketch8.addConstraint(Sketcher.Constraint("Equal", 2, 4))
sketch8.addConstraint(Sketcher.Constraint("DistanceX", 1, 1, 1, 2, Q("75 mm")))
sketch8.addConstraint(Sketcher.Constraint("DistanceY", 0, 2, 0, 1, Q("15 mm")))
sketch8.addConstraint(Sketcher.Constraint("DistanceX", -1, 1, 0, 2, Q("76.8 mm")))
sketch8.addConstraint(Sketcher.Constraint("DistanceY", 4, 2, -1, 1, Q("294.4 mm")))
sketch8.setExpression("Constraints[20]", "Params.sketch8_width")
sketch8.setExpression("Constraints[21]", "Params.sketch8_height")
pad2 = body.newObject("PartDesign::Pad", "Pad001")
pad2.Profile = sketch8
pad2.setExpression("Length", "Params.pad2_length")
pad2.Reversed = True

# Sketch on XZ plane
sketch9 = body.newObject("Sketcher::SketchObject", "Sketch008")
sketch9.AttachmentSupport = (doc.getObject("XZ_Plane"), [""])
sketch9.MapMode = "FlatFace"
sketch9.AttachmentOffset = App.Placement(App.Vector(0, 0, -3.175), App.Rotation())
sketch9.addGeometry(Part.Circle(App.Vector(133.9, -287.5, 0), App.Vector(0, 0, 1), 1.6), False)
sketch9.addGeometry(Part.Circle(App.Vector(94.7, -287.5, 0), App.Vector(0, 0, 1), 1.6), False)
sketch9.addGeometry(Part.Circle(App.Vector(133.9, 8.1, 0), App.Vector(0, 0, 1), 1.6), False)
sketch9.addGeometry(Part.Circle(App.Vector(94.7, 8.1, 0), App.Vector(0, 0, 1), 1.6), False)
sketch9.addGeometry(Part.LineSegment(App.Vector(99.3, -294.4, 0), App.Vector(99.3, -280.7, 0)), False)
sketch9.addGeometry(Part.LineSegment(App.Vector(99.3, -280.7, 0), App.Vector(129.3, -280.7, 0)), False)
sketch9.addGeometry(Part.LineSegment(App.Vector(129.3, -280.7, 0), App.Vector(129.3, -294.4, 0)), False)
sketch9.addGeometry(Part.LineSegment(App.Vector(129.3, -294.4, 0), App.Vector(99.3, -294.4, 0)), False)
sketch9.addGeometry(Part.LineSegment(App.Vector(99.3, 1.3, 0), App.Vector(99.3, 15, 0)), False)
sketch9.addGeometry(Part.LineSegment(App.Vector(99.3, 15, 0), App.Vector(129.3, 15, 0)), False)
sketch9.addGeometry(Part.LineSegment(App.Vector(129.3, 15, 0), App.Vector(129.3, 1.3, 0)), False)
sketch9.addGeometry(Part.LineSegment(App.Vector(129.3, 1.3, 0), App.Vector(99.3, 1.3, 0)), False)
sketch9.addConstraint(Sketcher.Constraint("Coincident", 4, 2, 5, 1))
sketch9.addConstraint(Sketcher.Constraint("Coincident", 5, 2, 6, 1))
sketch9.addConstraint(Sketcher.Constraint("Coincident", 6, 2, 7, 1))
sketch9.addConstraint(Sketcher.Constraint("Coincident", 7, 2, 4, 1))
sketch9.addConstraint(Sketcher.Constraint("Coincident", 8, 2, 9, 1))
sketch9.addConstraint(Sketcher.Constraint("Coincident", 9, 2, 10, 1))
sketch9.addConstraint(Sketcher.Constraint("Coincident", 10, 2, 11, 1))
sketch9.addConstraint(Sketcher.Constraint("Coincident", 11, 2, 8, 1))
sketch9.addConstraint(Sketcher.Constraint("Vertical", 4))
sketch9.addConstraint(Sketcher.Constraint("Horizontal", 5))
sketch9.addConstraint(Sketcher.Constraint("Vertical", 6))
sketch9.addConstraint(Sketcher.Constraint("Horizontal", 7))
sketch9.addConstraint(Sketcher.Constraint("Vertical", 8))
sketch9.addConstraint(Sketcher.Constraint("Horizontal", 9))
sketch9.addConstraint(Sketcher.Constraint("Vertical", 10))
sketch9.addConstraint(Sketcher.Constraint("Horizontal", 11))
sketch9.addConstraint(Sketcher.Constraint("Equal", 0, 1))
sketch9.addConstraint(Sketcher.Constraint("Equal", 1, 2))
sketch9.addConstraint(Sketcher.Constraint("Equal", 2, 3))
sketch9.addConstraint(Sketcher.Constraint("Horizontal", 0, 3, 1, 3))
sketch9.addConstraint(Sketcher.Constraint("Horizontal", 2, 3, 3, 3))
sketch9.addConstraint(Sketcher.Constraint("Vertical", 0, 3, 2, 3))
sketch9.addConstraint(Sketcher.Constraint("Vertical", 1, 3, 3, 3))
sketch9.addConstraint(Sketcher.Constraint("Vertical", 7, 2, 8, 2))
sketch9.addConstraint(Sketcher.Constraint("Vertical", 6, 2, 9, 2))
sketch9.addConstraint(Sketcher.Constraint("Equal", 6, 8))
sketch9.addConstraint(Sketcher.Constraint("Diameter", 0, Q("3.2 mm")))
sketch9.addConstraint(Sketcher.Constraint("DistanceX", 5, 1, 5, 2, Q("30 mm")))
sketch9.addConstraint(Sketcher.Constraint("DistanceY", 4, 1, 4, 2, Q("13.7 mm")))
sketch9.addConstraint(Sketcher.Constraint("DistanceY", -1, 1, 8, 2, Q("15 mm")))
sketch9.addConstraint(Sketcher.Constraint("DistanceY", 5, 2, 10, 2, Q("282 mm")))
sketch9.addConstraint(Sketcher.Constraint("DistanceX", -1, 1, 4, 2, Q("99.3 mm")))
sketch9.addConstraint(Sketcher.Constraint("DistanceX", 1, 3, 0, 3, Q("39.1 mm")))
sketch9.addConstraint(Sketcher.Constraint("DistanceY", 0, 3, 2, 3, Q("295.7 mm")))
sketch9.addConstraint(Sketcher.Constraint("DistanceX", -1, 1, 0, 3, Q("133.85 mm")))
sketch9.addConstraint(Sketcher.Constraint("DistanceY", 0, 3, -1, 1, Q("287.55 mm")))
sketch9.setExpression("Constraints[26]", "Params.sketch9_diameter")
sketch9.setExpression("Constraints[27]", "Params.sketch9_width")
sketch9.setExpression("Constraints[28]", "Params.sketch9_height")
pocket7 = body.newObject("PartDesign::Pocket", "Pocket006")
pocket7.Profile = sketch9
pocket7.Type = "ThroughAll"
pocket7.Midplane = True

doc.recompute()
